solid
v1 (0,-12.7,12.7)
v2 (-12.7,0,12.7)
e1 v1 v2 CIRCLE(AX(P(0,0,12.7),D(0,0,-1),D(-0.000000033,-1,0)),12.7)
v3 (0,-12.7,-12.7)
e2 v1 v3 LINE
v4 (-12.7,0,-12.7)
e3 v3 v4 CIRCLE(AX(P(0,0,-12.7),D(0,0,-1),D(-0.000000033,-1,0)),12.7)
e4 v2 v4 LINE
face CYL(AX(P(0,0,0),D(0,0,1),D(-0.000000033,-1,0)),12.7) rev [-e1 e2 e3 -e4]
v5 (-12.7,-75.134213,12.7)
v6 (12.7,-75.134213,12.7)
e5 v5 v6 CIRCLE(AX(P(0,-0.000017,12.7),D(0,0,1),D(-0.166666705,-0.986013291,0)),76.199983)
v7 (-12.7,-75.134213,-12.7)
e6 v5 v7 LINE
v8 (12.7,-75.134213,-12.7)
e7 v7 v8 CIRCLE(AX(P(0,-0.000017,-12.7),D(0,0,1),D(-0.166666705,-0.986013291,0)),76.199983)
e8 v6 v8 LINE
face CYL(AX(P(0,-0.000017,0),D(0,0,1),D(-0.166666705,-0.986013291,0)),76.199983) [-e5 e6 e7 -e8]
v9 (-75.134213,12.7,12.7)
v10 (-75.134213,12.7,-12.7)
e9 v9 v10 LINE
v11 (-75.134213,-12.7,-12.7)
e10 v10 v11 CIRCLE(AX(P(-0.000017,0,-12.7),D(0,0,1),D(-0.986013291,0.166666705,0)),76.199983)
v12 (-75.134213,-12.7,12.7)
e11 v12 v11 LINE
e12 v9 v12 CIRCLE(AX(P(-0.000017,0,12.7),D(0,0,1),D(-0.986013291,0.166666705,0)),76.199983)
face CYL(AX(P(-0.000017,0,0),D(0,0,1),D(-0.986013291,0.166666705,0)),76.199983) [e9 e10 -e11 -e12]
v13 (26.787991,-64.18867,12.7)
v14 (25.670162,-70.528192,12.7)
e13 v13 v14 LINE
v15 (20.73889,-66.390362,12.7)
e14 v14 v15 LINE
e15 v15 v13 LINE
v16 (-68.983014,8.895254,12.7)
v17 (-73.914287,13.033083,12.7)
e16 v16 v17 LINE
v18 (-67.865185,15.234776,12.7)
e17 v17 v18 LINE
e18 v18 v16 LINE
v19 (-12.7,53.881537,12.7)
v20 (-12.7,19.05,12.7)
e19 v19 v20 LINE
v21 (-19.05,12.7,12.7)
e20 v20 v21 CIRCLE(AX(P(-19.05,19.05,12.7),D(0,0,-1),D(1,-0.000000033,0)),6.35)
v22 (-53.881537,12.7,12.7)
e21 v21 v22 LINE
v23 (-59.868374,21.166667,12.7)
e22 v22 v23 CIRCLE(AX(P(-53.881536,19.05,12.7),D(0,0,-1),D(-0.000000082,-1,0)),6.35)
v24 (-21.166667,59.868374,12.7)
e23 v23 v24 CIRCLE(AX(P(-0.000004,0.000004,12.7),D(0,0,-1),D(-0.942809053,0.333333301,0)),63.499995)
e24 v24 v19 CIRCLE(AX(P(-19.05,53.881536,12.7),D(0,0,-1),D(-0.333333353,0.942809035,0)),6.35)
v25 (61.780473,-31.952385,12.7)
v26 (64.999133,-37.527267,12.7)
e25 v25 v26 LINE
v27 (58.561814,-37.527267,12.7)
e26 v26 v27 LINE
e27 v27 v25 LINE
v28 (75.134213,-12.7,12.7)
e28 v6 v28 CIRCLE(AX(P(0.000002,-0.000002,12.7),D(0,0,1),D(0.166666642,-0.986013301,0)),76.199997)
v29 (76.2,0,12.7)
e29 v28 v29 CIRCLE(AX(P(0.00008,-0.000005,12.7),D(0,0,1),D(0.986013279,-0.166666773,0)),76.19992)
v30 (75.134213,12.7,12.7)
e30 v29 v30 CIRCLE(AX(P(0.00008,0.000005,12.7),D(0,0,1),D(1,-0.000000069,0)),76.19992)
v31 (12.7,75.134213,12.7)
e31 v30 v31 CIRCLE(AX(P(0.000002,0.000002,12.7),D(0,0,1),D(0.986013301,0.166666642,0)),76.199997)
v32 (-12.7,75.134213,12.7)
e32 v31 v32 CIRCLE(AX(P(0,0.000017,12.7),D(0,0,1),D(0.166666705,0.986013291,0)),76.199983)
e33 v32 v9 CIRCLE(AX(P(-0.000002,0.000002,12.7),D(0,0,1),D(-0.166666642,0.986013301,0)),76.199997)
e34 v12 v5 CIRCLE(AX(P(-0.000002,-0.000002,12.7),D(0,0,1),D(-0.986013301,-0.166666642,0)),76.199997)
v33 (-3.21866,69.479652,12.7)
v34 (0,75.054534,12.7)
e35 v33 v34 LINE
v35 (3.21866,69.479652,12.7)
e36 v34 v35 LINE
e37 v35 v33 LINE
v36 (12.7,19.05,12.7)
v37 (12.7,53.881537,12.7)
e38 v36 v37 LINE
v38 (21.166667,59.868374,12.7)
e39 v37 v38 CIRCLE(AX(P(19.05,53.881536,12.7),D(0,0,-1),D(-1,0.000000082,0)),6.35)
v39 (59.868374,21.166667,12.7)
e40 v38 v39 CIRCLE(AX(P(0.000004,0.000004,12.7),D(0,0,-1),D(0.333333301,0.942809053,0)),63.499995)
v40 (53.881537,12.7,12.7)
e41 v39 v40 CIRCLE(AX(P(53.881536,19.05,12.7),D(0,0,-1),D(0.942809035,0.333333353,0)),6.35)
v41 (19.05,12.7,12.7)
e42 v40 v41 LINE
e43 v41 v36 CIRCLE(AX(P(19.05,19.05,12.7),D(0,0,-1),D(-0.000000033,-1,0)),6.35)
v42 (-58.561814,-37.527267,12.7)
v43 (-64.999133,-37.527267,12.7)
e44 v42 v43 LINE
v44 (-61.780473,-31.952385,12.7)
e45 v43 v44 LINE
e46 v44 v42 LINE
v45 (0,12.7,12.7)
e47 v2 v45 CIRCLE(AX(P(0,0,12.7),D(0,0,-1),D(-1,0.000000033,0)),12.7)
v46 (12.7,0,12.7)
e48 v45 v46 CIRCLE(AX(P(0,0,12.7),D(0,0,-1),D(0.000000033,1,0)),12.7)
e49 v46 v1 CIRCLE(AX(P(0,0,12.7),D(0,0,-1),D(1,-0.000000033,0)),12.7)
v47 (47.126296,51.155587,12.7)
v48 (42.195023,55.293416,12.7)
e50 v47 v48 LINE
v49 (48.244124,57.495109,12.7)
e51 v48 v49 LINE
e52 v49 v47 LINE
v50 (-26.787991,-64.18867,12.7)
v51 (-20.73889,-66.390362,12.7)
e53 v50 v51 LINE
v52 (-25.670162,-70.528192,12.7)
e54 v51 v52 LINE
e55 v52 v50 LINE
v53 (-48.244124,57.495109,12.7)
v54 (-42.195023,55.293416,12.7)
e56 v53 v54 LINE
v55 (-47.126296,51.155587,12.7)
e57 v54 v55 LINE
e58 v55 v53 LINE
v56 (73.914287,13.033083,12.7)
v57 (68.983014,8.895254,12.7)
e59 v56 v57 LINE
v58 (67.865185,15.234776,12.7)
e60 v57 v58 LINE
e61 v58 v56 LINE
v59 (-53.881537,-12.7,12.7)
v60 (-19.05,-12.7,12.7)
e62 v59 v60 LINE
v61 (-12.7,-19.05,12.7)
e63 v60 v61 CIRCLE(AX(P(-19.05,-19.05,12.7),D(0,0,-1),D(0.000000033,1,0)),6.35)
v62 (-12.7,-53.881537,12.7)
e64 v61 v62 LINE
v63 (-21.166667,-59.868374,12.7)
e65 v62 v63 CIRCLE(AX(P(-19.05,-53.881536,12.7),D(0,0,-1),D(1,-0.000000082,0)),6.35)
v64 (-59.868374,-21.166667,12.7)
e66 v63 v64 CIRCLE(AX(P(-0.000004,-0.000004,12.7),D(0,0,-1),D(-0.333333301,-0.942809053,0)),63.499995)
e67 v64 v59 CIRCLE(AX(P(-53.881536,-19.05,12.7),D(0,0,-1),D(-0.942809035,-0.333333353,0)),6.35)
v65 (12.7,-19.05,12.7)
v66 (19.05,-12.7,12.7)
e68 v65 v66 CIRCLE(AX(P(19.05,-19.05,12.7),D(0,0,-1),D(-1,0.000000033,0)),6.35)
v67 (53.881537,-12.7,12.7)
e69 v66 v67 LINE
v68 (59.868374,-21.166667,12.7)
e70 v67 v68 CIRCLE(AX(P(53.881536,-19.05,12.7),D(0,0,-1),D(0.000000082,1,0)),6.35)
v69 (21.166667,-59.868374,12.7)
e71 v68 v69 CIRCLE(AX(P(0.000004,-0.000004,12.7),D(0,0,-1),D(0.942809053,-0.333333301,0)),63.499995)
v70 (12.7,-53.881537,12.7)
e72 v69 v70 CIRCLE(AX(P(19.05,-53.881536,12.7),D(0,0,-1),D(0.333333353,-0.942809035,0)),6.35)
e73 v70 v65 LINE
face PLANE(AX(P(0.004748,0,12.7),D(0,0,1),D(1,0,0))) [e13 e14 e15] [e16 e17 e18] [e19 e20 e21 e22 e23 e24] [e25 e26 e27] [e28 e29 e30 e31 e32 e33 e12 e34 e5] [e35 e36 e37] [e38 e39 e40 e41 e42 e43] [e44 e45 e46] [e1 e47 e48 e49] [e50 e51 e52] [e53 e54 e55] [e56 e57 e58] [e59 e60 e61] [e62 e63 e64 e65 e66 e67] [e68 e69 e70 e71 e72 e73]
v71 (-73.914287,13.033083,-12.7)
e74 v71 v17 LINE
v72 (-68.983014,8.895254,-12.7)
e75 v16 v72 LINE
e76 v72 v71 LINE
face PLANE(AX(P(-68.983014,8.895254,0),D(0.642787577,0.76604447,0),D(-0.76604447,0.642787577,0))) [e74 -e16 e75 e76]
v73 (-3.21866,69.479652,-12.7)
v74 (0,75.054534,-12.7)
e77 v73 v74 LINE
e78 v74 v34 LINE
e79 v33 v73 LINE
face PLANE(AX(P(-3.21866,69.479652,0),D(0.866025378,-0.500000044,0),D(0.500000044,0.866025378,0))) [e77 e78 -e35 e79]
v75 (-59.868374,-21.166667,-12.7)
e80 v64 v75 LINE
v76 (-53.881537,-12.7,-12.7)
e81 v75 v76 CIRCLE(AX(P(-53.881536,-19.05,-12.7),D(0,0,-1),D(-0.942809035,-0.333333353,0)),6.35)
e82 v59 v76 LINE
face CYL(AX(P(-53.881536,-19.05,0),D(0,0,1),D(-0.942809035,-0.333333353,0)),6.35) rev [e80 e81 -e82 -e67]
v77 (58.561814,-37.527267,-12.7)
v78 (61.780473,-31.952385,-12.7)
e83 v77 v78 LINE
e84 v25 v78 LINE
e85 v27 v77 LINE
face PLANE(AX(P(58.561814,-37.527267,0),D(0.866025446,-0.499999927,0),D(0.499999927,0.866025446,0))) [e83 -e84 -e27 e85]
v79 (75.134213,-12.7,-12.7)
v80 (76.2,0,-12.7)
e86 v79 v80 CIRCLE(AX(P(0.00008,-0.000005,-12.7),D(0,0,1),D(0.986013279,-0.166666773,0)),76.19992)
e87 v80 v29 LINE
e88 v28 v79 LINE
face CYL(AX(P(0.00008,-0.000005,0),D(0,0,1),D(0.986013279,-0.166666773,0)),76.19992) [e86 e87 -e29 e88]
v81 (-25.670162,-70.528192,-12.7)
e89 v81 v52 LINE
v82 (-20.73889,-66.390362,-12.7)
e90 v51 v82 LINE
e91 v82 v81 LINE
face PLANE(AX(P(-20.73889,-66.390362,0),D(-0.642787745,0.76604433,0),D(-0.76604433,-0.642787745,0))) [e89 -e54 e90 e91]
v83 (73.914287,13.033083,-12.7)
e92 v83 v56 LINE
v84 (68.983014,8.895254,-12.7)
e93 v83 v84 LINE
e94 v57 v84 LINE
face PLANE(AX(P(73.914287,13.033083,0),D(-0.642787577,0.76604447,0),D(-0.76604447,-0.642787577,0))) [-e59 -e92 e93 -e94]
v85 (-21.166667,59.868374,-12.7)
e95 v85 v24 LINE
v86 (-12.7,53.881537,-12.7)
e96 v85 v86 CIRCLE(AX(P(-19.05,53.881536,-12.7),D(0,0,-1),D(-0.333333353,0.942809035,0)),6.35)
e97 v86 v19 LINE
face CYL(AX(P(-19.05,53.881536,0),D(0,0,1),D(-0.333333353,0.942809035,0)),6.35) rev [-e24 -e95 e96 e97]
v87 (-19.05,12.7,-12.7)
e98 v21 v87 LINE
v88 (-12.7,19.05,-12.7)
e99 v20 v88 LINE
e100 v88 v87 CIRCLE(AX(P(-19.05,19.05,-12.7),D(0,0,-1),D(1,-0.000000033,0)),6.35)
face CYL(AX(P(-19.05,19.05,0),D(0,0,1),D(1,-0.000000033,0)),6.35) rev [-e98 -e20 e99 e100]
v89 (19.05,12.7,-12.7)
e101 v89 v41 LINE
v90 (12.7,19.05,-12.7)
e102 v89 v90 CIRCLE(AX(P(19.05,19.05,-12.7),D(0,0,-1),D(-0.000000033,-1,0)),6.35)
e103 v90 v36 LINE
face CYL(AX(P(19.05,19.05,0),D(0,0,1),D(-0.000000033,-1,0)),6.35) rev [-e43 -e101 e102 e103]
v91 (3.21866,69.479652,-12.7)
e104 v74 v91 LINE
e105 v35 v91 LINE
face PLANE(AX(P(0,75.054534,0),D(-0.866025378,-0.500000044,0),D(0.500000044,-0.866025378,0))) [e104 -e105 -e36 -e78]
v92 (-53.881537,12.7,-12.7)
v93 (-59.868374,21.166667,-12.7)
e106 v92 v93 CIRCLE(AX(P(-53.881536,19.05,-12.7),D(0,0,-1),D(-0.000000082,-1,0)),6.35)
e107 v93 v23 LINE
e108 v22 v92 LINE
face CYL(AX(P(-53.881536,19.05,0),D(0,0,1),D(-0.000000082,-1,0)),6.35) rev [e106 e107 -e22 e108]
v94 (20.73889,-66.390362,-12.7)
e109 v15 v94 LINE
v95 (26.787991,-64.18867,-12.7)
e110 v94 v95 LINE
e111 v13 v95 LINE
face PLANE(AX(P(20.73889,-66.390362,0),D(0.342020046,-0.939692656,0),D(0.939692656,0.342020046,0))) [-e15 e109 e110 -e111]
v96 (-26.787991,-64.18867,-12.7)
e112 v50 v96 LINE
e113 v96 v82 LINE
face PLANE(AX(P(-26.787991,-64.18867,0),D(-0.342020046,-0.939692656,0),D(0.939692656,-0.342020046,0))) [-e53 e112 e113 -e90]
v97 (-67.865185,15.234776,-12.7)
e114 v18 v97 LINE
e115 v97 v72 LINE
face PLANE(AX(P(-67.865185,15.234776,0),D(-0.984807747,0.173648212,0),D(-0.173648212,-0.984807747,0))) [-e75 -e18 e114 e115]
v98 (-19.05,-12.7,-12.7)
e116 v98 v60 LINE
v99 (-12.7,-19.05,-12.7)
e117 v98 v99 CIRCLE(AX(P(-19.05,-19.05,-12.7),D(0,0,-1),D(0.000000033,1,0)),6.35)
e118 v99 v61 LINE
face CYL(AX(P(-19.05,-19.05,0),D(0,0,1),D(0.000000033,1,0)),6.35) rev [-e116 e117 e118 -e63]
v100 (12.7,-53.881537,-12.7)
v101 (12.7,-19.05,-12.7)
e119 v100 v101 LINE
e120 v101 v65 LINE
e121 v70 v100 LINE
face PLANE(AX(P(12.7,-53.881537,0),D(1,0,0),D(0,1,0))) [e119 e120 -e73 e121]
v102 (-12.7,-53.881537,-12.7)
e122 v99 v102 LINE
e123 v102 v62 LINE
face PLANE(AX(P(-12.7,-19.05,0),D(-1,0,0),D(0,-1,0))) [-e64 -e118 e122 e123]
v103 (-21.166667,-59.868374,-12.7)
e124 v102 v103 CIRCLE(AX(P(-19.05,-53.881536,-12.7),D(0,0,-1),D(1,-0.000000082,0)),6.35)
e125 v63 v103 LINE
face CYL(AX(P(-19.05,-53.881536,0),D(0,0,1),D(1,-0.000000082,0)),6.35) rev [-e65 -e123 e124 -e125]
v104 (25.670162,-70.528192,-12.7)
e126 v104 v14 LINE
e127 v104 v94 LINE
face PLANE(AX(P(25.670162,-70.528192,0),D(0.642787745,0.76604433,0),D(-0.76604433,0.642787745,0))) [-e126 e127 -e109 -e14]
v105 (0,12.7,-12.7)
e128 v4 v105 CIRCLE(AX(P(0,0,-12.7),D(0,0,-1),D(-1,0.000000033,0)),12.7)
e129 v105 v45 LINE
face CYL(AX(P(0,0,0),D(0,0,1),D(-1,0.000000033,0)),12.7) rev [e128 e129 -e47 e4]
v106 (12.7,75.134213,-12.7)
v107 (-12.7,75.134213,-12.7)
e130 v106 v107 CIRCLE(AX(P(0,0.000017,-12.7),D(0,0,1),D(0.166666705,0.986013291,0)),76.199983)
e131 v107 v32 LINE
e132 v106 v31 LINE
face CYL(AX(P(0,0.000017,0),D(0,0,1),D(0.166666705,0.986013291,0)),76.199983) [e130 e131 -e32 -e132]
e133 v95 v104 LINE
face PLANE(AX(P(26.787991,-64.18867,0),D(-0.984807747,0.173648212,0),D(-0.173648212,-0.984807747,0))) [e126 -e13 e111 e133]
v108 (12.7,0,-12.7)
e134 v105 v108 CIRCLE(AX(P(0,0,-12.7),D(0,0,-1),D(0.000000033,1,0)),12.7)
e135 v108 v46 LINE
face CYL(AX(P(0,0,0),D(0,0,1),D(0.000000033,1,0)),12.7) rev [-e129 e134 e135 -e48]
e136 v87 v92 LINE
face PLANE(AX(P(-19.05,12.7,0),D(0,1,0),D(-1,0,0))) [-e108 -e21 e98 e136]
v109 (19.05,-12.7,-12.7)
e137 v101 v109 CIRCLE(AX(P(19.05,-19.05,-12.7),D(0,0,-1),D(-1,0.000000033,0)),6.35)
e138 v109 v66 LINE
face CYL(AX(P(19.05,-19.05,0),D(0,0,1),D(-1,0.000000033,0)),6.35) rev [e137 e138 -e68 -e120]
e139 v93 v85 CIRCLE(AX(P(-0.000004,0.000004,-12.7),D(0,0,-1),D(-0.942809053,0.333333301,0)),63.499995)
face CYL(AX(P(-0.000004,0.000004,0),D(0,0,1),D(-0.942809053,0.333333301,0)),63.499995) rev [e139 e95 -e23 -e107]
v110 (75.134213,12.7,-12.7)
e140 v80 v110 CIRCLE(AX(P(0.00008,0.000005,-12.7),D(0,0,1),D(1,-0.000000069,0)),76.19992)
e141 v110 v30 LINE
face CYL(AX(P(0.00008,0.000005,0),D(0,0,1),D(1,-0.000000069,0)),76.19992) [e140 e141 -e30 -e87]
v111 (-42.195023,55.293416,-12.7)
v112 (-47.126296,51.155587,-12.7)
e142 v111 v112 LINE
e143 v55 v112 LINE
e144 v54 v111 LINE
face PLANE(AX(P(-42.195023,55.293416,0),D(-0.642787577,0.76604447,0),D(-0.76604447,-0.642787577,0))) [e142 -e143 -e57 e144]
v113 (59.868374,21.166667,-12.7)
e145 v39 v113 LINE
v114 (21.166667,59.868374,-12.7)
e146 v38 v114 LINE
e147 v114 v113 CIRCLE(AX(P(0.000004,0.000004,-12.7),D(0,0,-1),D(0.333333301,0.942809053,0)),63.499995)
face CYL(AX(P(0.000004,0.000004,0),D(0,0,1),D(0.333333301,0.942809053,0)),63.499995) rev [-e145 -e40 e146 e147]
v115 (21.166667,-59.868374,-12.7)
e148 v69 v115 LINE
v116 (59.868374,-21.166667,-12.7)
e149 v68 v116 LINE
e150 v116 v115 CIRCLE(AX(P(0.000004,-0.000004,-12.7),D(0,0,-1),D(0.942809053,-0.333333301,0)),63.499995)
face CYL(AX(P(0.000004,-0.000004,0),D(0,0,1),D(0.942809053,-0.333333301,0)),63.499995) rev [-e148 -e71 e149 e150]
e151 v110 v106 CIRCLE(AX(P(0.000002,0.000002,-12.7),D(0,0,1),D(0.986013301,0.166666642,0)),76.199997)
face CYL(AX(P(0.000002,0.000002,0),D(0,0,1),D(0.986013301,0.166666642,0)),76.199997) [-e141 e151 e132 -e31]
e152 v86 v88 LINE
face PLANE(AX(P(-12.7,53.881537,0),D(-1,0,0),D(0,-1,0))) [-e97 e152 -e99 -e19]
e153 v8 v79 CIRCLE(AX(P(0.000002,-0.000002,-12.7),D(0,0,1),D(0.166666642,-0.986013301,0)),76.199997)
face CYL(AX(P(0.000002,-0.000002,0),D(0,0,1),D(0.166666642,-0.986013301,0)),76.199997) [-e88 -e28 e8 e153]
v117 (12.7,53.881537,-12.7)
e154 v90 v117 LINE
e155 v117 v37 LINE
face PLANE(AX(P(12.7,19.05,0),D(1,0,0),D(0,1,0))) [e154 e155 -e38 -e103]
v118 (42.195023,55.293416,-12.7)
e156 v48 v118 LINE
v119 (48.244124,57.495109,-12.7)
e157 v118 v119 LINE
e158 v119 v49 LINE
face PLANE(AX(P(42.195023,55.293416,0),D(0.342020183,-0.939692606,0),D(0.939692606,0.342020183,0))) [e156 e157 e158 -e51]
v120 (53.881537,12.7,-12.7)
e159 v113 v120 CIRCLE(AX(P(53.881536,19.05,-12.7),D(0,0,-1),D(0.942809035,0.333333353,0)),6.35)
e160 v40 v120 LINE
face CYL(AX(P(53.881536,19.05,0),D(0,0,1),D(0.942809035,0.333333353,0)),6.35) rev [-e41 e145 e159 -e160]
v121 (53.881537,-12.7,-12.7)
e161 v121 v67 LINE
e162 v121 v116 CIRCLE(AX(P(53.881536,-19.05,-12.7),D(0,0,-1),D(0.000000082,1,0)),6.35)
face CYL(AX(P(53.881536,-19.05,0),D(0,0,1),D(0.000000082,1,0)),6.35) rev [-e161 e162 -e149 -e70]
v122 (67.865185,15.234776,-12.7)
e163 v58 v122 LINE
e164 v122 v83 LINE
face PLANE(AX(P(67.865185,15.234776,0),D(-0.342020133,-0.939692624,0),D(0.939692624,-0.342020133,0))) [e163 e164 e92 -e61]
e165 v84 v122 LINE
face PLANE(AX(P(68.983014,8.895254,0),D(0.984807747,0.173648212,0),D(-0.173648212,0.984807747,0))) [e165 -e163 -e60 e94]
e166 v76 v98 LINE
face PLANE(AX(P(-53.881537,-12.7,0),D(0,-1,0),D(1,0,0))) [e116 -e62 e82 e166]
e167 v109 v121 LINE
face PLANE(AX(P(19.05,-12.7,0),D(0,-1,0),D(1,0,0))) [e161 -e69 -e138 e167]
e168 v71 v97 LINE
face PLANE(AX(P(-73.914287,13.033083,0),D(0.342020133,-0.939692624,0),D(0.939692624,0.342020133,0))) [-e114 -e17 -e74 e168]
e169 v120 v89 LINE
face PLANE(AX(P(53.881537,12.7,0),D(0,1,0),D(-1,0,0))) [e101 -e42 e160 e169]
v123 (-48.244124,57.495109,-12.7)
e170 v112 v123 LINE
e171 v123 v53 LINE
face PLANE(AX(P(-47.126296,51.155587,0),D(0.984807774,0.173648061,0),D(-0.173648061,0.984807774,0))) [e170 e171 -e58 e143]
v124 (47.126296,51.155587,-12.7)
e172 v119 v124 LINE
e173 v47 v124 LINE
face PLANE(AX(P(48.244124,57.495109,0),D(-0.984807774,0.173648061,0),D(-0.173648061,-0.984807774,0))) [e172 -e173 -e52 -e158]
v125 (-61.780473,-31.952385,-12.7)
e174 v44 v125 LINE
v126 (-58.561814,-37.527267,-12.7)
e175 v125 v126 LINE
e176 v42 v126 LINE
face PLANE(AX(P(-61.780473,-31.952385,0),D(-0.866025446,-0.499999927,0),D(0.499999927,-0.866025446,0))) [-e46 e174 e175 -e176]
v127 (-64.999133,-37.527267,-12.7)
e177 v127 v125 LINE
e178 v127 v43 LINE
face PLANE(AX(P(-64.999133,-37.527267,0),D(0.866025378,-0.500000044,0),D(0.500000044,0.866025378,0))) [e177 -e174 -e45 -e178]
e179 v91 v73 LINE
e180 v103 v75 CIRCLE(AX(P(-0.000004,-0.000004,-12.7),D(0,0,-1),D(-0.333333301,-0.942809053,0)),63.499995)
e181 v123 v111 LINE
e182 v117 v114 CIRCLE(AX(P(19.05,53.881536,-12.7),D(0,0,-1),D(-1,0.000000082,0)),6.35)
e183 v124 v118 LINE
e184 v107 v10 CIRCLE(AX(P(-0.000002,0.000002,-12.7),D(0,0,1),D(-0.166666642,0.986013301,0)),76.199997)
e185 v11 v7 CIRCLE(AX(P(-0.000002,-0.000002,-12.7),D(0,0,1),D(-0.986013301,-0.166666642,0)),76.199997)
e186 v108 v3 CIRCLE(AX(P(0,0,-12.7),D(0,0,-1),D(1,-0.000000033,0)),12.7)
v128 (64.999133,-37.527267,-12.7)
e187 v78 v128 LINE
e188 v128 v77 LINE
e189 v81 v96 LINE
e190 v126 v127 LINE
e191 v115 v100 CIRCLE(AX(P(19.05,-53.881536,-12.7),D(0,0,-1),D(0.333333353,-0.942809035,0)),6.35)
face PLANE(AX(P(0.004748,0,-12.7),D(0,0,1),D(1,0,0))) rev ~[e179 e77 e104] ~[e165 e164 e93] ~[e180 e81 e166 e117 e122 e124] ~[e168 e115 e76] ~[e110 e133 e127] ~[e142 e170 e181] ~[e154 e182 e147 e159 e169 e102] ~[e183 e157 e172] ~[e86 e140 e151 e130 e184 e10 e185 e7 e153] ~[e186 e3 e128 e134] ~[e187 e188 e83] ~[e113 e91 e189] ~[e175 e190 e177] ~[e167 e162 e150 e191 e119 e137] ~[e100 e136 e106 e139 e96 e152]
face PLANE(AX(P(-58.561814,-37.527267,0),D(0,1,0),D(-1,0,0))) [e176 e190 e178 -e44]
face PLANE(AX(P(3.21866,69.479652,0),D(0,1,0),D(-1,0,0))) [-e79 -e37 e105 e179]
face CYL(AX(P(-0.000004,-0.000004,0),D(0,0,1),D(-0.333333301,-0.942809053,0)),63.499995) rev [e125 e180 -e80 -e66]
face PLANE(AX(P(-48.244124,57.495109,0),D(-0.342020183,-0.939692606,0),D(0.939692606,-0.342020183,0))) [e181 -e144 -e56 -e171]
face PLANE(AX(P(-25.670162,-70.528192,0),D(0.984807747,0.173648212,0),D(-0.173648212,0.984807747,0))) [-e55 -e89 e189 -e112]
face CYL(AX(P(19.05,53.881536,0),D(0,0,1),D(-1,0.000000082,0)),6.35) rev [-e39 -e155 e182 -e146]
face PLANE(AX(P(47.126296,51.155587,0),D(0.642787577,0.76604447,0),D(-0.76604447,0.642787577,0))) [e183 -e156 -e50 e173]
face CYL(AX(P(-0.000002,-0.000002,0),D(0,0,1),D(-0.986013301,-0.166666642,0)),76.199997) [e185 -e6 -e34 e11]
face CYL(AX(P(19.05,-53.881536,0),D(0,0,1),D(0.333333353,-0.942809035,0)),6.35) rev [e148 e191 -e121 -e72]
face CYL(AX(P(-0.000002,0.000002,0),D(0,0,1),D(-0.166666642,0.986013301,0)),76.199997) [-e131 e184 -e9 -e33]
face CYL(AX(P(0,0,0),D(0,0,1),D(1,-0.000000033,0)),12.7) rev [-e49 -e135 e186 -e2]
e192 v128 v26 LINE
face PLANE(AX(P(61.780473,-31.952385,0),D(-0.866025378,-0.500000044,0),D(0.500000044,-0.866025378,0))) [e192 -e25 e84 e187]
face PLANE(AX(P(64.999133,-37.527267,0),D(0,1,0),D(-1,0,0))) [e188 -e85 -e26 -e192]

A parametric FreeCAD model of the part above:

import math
import FreeCAD as App
import Part
import Sketcher
from FreeCAD import Vector
Q = App.Units.Quantity


def add_polygon(sketch, points):
    """Adds a closed chain of lines whose ends are joined by coincident constraints."""
    first, n = sketch.GeometryCount, len(points)
    for a, b in zip(points, points[1:] + points[:1]):
        sketch.addGeometry(Part.LineSegment(App.Vector(*a, 0), App.Vector(*b, 0)), False)
    for i in range(n):
        sketch.addConstraint(Sketcher.Constraint("Coincident", first + i, 2, first + (i + 1) % n, 1))

doc = App.newDocument("Part")
params = doc.addObject("Spreadsheet::Sheet", "Params")
for row, (alias, value) in enumerate([
    ("sketch1_radius", "2.9999999 in"),
    ("sketch1_radius2", "0.5 in"),
    ("sketch1_radius3", "0.5 in"),
    ("sketch1_radius4", "0.25 in"),
    ("sketch1_radius5", "0.25 in"),
    ("pad1_length", "1 in"),
], start=1):
    params.set(f"A{row}", alias)
    params.set(f"B{row}", "=" + value)
    params.setAlias(f"B{row}", alias)

body = doc.addObject("PartDesign::Body", "Body")

sketch1 = body.newObject("Sketcher::SketchObject", "Sketch")
sketch1.AttachmentSupport = (doc.getObject("XY_Plane"), [""])
sketch1.MapMode = "FlatFace"
sketch1.addGeometry(Part.ArcOfCircle(Part.Circle(Vector(0.00008, -0.000005, 0), Vector(0, 0, 1), 76.19992), math.radians(-9.594074), math.radians(0.000004)), False)
sketch1.addGeometry(Part.ArcOfCircle(Part.Circle(Vector(0.00008, 0.000005, 0), Vector(0, 0, 1), 76.19992), math.radians(-0.000004), math.radians(9.594074)), False)
sketch1.addGeometry(Part.ArcOfCircle(Part.Circle(Vector(0.000002, 0.000002, 0), Vector(0, 0, 1), 76.199997), math.radians(9.594067), math.radians(80.405933)), False)
sketch1.addGeometry(Part.ArcOfCircle(Part.Circle(Vector(0, 0.000017, 0), Vector(0, 0, 1), 76.199983), math.radians(80.40593), math.radians(99.59407)), False)
sketch1.addGeometry(Part.ArcOfCircle(Part.Circle(Vector(-0.000002, 0.000002, 0), Vector(0, 0, 1), 76.199997), math.radians(99.594067), math.radians(170.405933)), False)
sketch1.addGeometry(Part.ArcOfCircle(Part.Circle(Vector(-0.000017, 0, 0), Vector(0, 0, 1), 76.199983), math.radians(170.40593), math.radians(189.59407)), False)
sketch1.addGeometry(Part.ArcOfCircle(Part.Circle(Vector(-0.000002, -0.000002, 0), Vector(0, 0, 1), 76.199997), math.radians(-170.405933), math.radians(-99.594067)), False)
sketch1.addGeometry(Part.ArcOfCircle(Part.Circle(Vector(0, -0.000017, 0), Vector(0, 0, 1), 76.199983), math.radians(-99.59407), math.radians(-80.40593)), False)
sketch1.addGeometry(Part.ArcOfCircle(Part.Circle(Vector(0.000002, -0.000002, 0), Vector(0, 0, 1), 76.199997), math.radians(-80.405933), math.radians(-9.594067)), False)
add_polygon(sketch1, [(-58.561814, -37.527267), (-64.999133, -37.527267), (-61.780473, -31.952385)])
add_polygon(sketch1, [(-20.73889, -66.390362), (-25.670162, -70.528192), (-26.787991, -64.18867)])
sketch1.addGeometry(Part.LineSegment(Vector(-53.881537, -12.7, 0), Vector(-19.05, -12.7, 0)), False)
sketch1.addGeometry(Part.ArcOfCircle(Part.Circle(Vector(-19.05, -19.05, 0), Vector(0, 0, 1), 6.35), math.radians(0.000002), math.radians(89.999998)), False)
sketch1.addGeometry(Part.LineSegment(Vector(-12.7, -19.05, 0), Vector(-12.7, -53.881537, 0)), False)
sketch1.addGeometry(Part.ArcOfCircle(Part.Circle(Vector(-19.05, -53.881536, 0), Vector(0, 0, 1), 6.35), math.radians(-109.471222), math.radians(-0.000005)), False)
sketch1.addGeometry(Part.ArcOfCircle(Part.Circle(Vector(-0.000004, -0.000004, 0), Vector(0, 0, 1), 63.499995), math.radians(-160.528781), math.radians(-109.471219)), False)
sketch1.addGeometry(Part.ArcOfCircle(Part.Circle(Vector(-53.881536, -19.05, 0), Vector(0, 0, 1), 6.35), math.radians(90.000005), math.radians(199.471222)), False)
add_polygon(sketch1, [(26.787991, -64.18867), (25.670162, -70.528192), (20.73889, -66.390362)])
sketch1.addGeometry(Part.LineSegment(Vector(12.7, -53.881537, 0), Vector(12.7, -19.05, 0)), False)
sketch1.addGeometry(Part.ArcOfCircle(Part.Circle(Vector(19.05, -19.05, 0), Vector(0, 0, 1), 6.35), math.radians(90.000002), math.radians(179.999998)), False)
sketch1.addGeometry(Part.LineSegment(Vector(19.05, -12.7, 0), Vector(53.881537, -12.7, 0)), False)
sketch1.addGeometry(Part.ArcOfCircle(Part.Circle(Vector(53.881536, -19.05, 0), Vector(0, 0, 1), 6.35), math.radians(-19.471222), math.radians(89.999995)), False)
sketch1.addGeometry(Part.ArcOfCircle(Part.Circle(Vector(0.000004, -0.000004, 0), Vector(0, 0, 1), 63.499995), math.radians(-70.528781), math.radians(-19.471219)), False)
sketch1.addGeometry(Part.ArcOfCircle(Part.Circle(Vector(19.05, -53.881536, 0), Vector(0, 0, 1), 6.35), math.radians(-179.999995), math.radians(-70.528778)), False)
add_polygon(sketch1, [(61.780473, -31.952385), (64.999133, -37.527267), (58.561814, -37.527267)])
sketch1.addGeometry(Part.ArcOfCircle(Part.Circle(Vector(0, 0, 0), Vector(0, 0, 1), 12.7), math.radians(90.000002), math.radians(179.999998)), False)
sketch1.addGeometry(Part.ArcOfCircle(Part.Circle(Vector(0, 0, 0), Vector(0, 0, 1), 12.7), math.radians(0.000002), math.radians(89.999998)), False)
sketch1.addGeometry(Part.ArcOfCircle(Part.Circle(Vector(0, 0, 0), Vector(0, 0, 1), 12.7), math.radians(-89.999998), math.radians(-0.000002)), False)
sketch1.addGeometry(Part.ArcOfCircle(Part.Circle(Vector(0, 0, 0), Vector(0, 0, 1), 12.7), math.radians(-179.999998), math.radians(-90.000002)), False)
add_polygon(sketch1, [(-68.983014, 8.895254), (-73.914287, 13.033083), (-67.865185, 15.234776)])
sketch1.addGeometry(Part.ArcOfCircle(Part.Circle(Vector(-53.881536, 19.05, 0), Vector(0, 0, 1), 6.35), math.radians(160.528778), math.radians(269.999995)), False)
sketch1.addGeometry(Part.ArcOfCircle(Part.Circle(Vector(-0.000004, 0.000004, 0), Vector(0, 0, 1), 63.499995), math.radians(109.471219), math.radians(160.528781)), False)
sketch1.addGeometry(Part.ArcOfCircle(Part.Circle(Vector(-19.05, 53.881536, 0), Vector(0, 0, 1), 6.35), math.radians(0.000005), math.radians(109.471222)), False)
sketch1.addGeometry(Part.LineSegment(Vector(-12.7, 53.881537, 0), Vector(-12.7, 19.05, 0)), False)
sketch1.addGeometry(Part.ArcOfCircle(Part.Circle(Vector(-19.05, 19.05, 0), Vector(0, 0, 1), 6.35), math.radians(-89.999998), math.radians(-0.000002)), False)
sketch1.addGeometry(Part.LineSegment(Vector(-19.05, 12.7, 0), Vector(-53.881537, 12.7, 0)), False)
add_polygon(sketch1, [(-47.126296, 51.155587), (-48.244124, 57.495109), (-42.195023, 55.293416)])
sketch1.addGeometry(Part.LineSegment(Vector(53.881537, 12.7, 0), Vector(19.05, 12.7, 0)), False)
sketch1.addGeometry(Part.ArcOfCircle(Part.Circle(Vector(19.05, 19.05, 0), Vector(0, 0, 1), 6.35), math.radians(-179.999998), math.radians(-90.000002)), False)
sketch1.addGeometry(Part.LineSegment(Vector(12.7, 19.05, 0), Vector(12.7, 53.881537, 0)), False)
sketch1.addGeometry(Part.ArcOfCircle(Part.Circle(Vector(19.05, 53.881536, 0), Vector(0, 0, 1), 6.35), math.radians(70.528778), math.radians(179.999995)), False)
sketch1.addGeometry(Part.ArcOfCircle(Part.Circle(Vector(0.000004, 0.000004, 0), Vector(0, 0, 1), 63.499995), math.radians(19.471219), math.radians(70.528781)), False)
sketch1.addGeometry(Part.ArcOfCircle(Part.Circle(Vector(53.881536, 19.05, 0), Vector(0, 0, 1), 6.35), math.radians(-89.999995), math.radians(19.471222)), False)
add_polygon(sketch1, [(67.865185, 15.234776), (73.914287, 13.033083), (68.983014, 8.895254)])
add_polygon(sketch1, [(-3.21866, 69.479652), (0, 75.054534), (3.21866, 69.479652)])
add_polygon(sketch1, [(42.195023, 55.293416), (48.244124, 57.495109), (47.126296, 51.155587)])
sketch1.addConstraint(Sketcher.Constraint("Coincident", 0, 2, 1, 1))
sketch1.addConstraint(Sketcher.Constraint("Coincident", 1, 2, 2, 1))
sketch1.addConstraint(Sketcher.Constraint("Coincident", 2, 2, 3, 1))
sketch1.addConstraint(Sketcher.Constraint("Coincident", 3, 2, 4, 1))
sketch1.addConstraint(Sketcher.Constraint("Coincident", 4, 2, 5, 1))
sketch1.addConstraint(Sketcher.Constraint("Coincident", 5, 2, 6, 1))
sketch1.addConstraint(Sketcher.Constraint("Coincident", 6, 2, 7, 1))
sketch1.addConstraint(Sketcher.Constraint("Coincident", 7, 2, 8, 1))
sketch1.addConstraint(Sketcher.Constraint("Coincident", 8, 2, 0, 1))
sketch1.addConstraint(Sketcher.Constraint("Coincident", 15, 2, 16, 2))
sketch1.addConstraint(Sketcher.Constraint("Coincident", 16, 1, 17, 1))
sketch1.addConstraint(Sketcher.Constraint("Coincident", 17, 2, 18, 2))
sketch1.addConstraint(Sketcher.Constraint("Coincident", 18, 1, 19, 2))
sketch1.addConstraint(Sketcher.Constraint("Coincident", 19, 1, 20, 2))
sketch1.addConstraint(Sketcher.Constraint("Coincident", 20, 1, 15, 1))
sketch1.addConstraint(Sketcher.Constraint("Coincident", 24, 2, 25, 2))
sketch1.addConstraint(Sketcher.Constraint("Coincident", 25, 1, 26, 1))
sketch1.addConstraint(Sketcher.Constraint("Coincident", 26, 2, 27, 2))
sketch1.addConstraint(Sketcher.Constraint("Coincident", 27, 1, 28, 2))
sketch1.addConstraint(Sketcher.Constraint("Coincident", 28, 1, 29, 2))
sketch1.addConstraint(Sketcher.Constraint("Coincident", 29, 1, 24, 1))
sketch1.addConstraint(Sketcher.Constraint("Coincident", 33, 1, 34, 2))
sketch1.addConstraint(Sketcher.Constraint("Coincident", 34, 1, 35, 2))
sketch1.addConstraint(Sketcher.Constraint("Coincident", 35, 1, 36, 2))
sketch1.addConstraint(Sketcher.Constraint("Coincident", 36, 1, 33, 2))
sketch1.addConstraint(Sketcher.Constraint("Coincident", 40, 1, 41, 2))
sketch1.addConstraint(Sketcher.Constraint("Coincident", 41, 1, 42, 2))
sketch1.addConstraint(Sketcher.Constraint("Coincident", 42, 1, 43, 1))
sketch1.addConstraint(Sketcher.Constraint("Coincident", 43, 2, 44, 2))
sketch1.addConstraint(Sketcher.Constraint("Coincident", 44, 1, 45, 1))
sketch1.addConstraint(Sketcher.Constraint("Coincident", 45, 2, 40, 2))
sketch1.addConstraint(Sketcher.Constraint("Coincident", 49, 2, 50, 2))
sketch1.addConstraint(Sketcher.Constraint("Coincident", 50, 1, 51, 1))
sketch1.addConstraint(Sketcher.Constraint("Coincident", 51, 2, 52, 2))
sketch1.addConstraint(Sketcher.Constraint("Coincident", 52, 1, 53, 2))
sketch1.addConstraint(Sketcher.Constraint("Coincident", 53, 1, 54, 2))
sketch1.addConstraint(Sketcher.Constraint("Coincident", 54, 1, 49, 1))
sketch1.addConstraint(Sketcher.Constraint("Horizontal", 9))
sketch1.addConstraint(Sketcher.Constraint("Horizontal", 15))
sketch1.addConstraint(Sketcher.Constraint("Vertical", 17))
sketch1.addConstraint(Sketcher.Constraint("Vertical", 24))
sketch1.addConstraint(Sketcher.Constraint("Horizontal", 26))
sketch1.addConstraint(Sketcher.Constraint("Horizontal", 31))
sketch1.addConstraint(Sketcher.Constraint("Vertical", 43))
sketch1.addConstraint(Sketcher.Constraint("Horizontal", 45))
sketch1.addConstraint(Sketcher.Constraint("Horizontal", 49))
sketch1.addConstraint(Sketcher.Constraint("Vertical", 51))
sketch1.addConstraint(Sketcher.Constraint("Horizontal", 60))
sketch1.addConstraint(Sketcher.Constraint("Coincident", 2, 3, -1, 1))
sketch1.addConstraint(Sketcher.Constraint("Coincident", 4, 3, -1, 1))
sketch1.addConstraint(Sketcher.Constraint("Coincident", 6, 3, -1, 1))
sketch1.addConstraint(Sketcher.Constraint("Coincident", 8, 3, -1, 1))
sketch1.addConstraint(Sketcher.Constraint("Coincident", 19, 3, -1, 1))
sketch1.addConstraint(Sketcher.Constraint("Coincident", 28, 3, -1, 1))
sketch1.addConstraint(Sketcher.Constraint("Coincident", 33, 3, -1, 1))
sketch1.addConstraint(Sketcher.Constraint("Coincident", 34, 3, -1, 1))
sketch1.addConstraint(Sketcher.Constraint("Coincident", 35, 3, -1, 1))
sketch1.addConstraint(Sketcher.Constraint("Coincident", 41, 3, -1, 1))
sketch1.addConstraint(Sketcher.Constraint("Coincident", 53, 3, -1, 1))
sketch1.addConstraint(Sketcher.Constraint("PointOnObject", 3, 3, -2))
sketch1.addConstraint(Sketcher.Constraint("PointOnObject", 5, 3, -1))
sketch1.addConstraint(Sketcher.Constraint("PointOnObject", 7, 3, -2))
sketch1.addConstraint(Sketcher.Constraint("PointOnObject", 0, 2, -1))
sketch1.addConstraint(Sketcher.Constraint("PointOnObject", 33, 1, -2))
sketch1.addConstraint(Sketcher.Constraint("PointOnObject", 34, 1, -1))
sketch1.addConstraint(Sketcher.Constraint("PointOnObject", 35, 1, -2))
sketch1.addConstraint(Sketcher.Constraint("PointOnObject", 36, 1, -1))
sketch1.addConstraint(Sketcher.Constraint("PointOnObject", 58, 2, -2))
sketch1.addConstraint(Sketcher.Constraint("Radius", 2, Q("2.9999999 in")))
sketch1.addConstraint(Sketcher.Constraint("Radius", 33, Q("0.5 in")))
sketch1.addConstraint(Sketcher.Constraint("Radius", 36, Q("0.5 in")))
sketch1.addConstraint(Sketcher.Constraint("Radius", 16, Q("0.25 in")))
sketch1.addConstraint(Sketcher.Constraint("Radius", 18, Q("0.25 in")))
sketch1.addConstraint(Sketcher.Constraint("Radius", 20, Q("0.25 in")))
sketch1.addConstraint(Sketcher.Constraint("Radius", 25, Q("0.25 in")))
sketch1.addConstraint(Sketcher.Constraint("Radius", 27, Q("0.25 in")))
sketch1.addConstraint(Sketcher.Constraint("Radius", 29, Q("0.25 in")))
sketch1.addConstraint(Sketcher.Constraint("Radius", 40, Q("0.25 in")))
sketch1.addConstraint(Sketcher.Constraint("Radius", 42, Q("0.25 in")))
sketch1.addConstraint(Sketcher.Constraint("Radius", 44, Q("0.25 in")))
sketch1.addConstraint(Sketcher.Constraint("Radius", 50, Q("0.25 in")))
sketch1.addConstraint(Sketcher.Constraint("Radius", 52, Q("0.25 in")))
sketch1.addConstraint(Sketcher.Constraint("Radius", 54, Q("0.25 in")))
sketch1.addConstraint(Sketcher.Constraint("DistanceX", -1, 1, 0, 2, Q("3 in")))
sketch1.addConstraint(Sketcher.Constraint("DistanceY", -1, 1, 1, 2, Q("0.5 in")))
sketch1.addConstraint(Sketcher.Constraint("DistanceX", -1, 1, 2, 2, Q("0.5 in")))
sketch1.addConstraint(Sketcher.Constraint("DistanceX", 3, 2, -1, 1, Q("0.5 in")))
sketch1.addConstraint(Sketcher.Constraint("DistanceY", -1, 1, 4, 2, Q("0.5 in")))
sketch1.addConstraint(Sketcher.Constraint("DistanceY", 5, 2, -1, 1, Q("0.5 in")))
sketch1.addConstraint(Sketcher.Constraint("DistanceX", 6, 2, -1, 1, Q("0.5 in")))
sketch1.addConstraint(Sketcher.Constraint("DistanceX", -1, 1, 7, 2, Q("0.5 in")))
sketch1.addConstraint(Sketcher.Constraint("DistanceY", 8, 2, -1, 1, Q("0.5 in")))
sketch1.addConstraint(Sketcher.Constraint("DistanceY", 15, 2, -1, 1, Q("0.5 in")))
sketch1.addConstraint(Sketcher.Constraint("DistanceX", 16, 1, -1, 1, Q("0.5 in")))
sketch1.addConstraint(Sketcher.Constraint("DistanceX", -1, 1, 24, 2, Q("0.5 in")))
sketch1.addConstraint(Sketcher.Constraint("DistanceY", 25, 1, -1, 1, Q("0.5 in")))
sketch1.addConstraint(Sketcher.Constraint("DistanceX", 42, 1, -1, 1, Q("0.5 in")))
sketch1.addConstraint(Sketcher.Constraint("DistanceY", -1, 1, 44, 1, Q("0.5 in")))
sketch1.addConstraint(Sketcher.Constraint("DistanceY", -1, 1, 49, 2, Q("0.5 in")))
sketch1.addConstraint(Sketcher.Constraint("DistanceX", -1, 1, 50, 1, Q("0.5 in")))
sketch1.addConstraint(Sketcher.Constraint("DistanceX", 15, 2, -1, 1, Q("0.75 in")))
sketch1.addConstraint(Sketcher.Constraint("DistanceY", 16, 1, -1, 1, Q("0.75 in")))
sketch1.addConstraint(Sketcher.Constraint("DistanceY", 24, 2, -1, 1, Q("0.75 in")))
sketch1.addConstraint(Sketcher.Constraint("DistanceX", -1, 1, 25, 1, Q("0.75 in")))
sketch1.addConstraint(Sketcher.Constraint("DistanceY", -1, 1, 43, 2, Q("0.75 in")))
sketch1.addConstraint(Sketcher.Constraint("DistanceX", 44, 1, -1, 1, Q("0.75 in")))
sketch1.addConstraint(Sketcher.Constraint("DistanceX", -1, 1, 49, 2, Q("0.75 in")))
sketch1.addConstraint(Sketcher.Constraint("DistanceY", -1, 1, 50, 1, Q("0.75 in")))
sketch1.addConstraint(Sketcher.Constraint("Radius", 0, Q("76.19992 mm")))
sketch1.addConstraint(Sketcher.Constraint("Radius", 1, Q("76.19992 mm")))
sketch1.addConstraint(Sketcher.Constraint("Radius", 3, Q("76.199983 mm")))
sketch1.addConstraint(Sketcher.Constraint("Radius", 5, Q("76.199983 mm")))
sketch1.addConstraint(Sketcher.Constraint("Radius", 7, Q("76.199983 mm")))
sketch1.addConstraint(Sketcher.Constraint("Radius", 19, Q("63.499995 mm")))
sketch1.addConstraint(Sketcher.Constraint("Radius", 28, Q("63.499995 mm")))
sketch1.addConstraint(Sketcher.Constraint("Radius", 41, Q("63.499995 mm")))
sketch1.addConstraint(Sketcher.Constraint("Radius", 53, Q("63.499995 mm")))
sketch1.addConstraint(Sketcher.Constraint("DistanceX", 9, 2, 9, 1, Q("6.437319 mm")))
sketch1.addConstraint(Sketcher.Constraint("DistanceX", 31, 2, 31, 1, Q("6.437319 mm")))
sketch1.addConstraint(Sketcher.Constraint("DistanceX", 60, 2, 60, 1, Q("6.43732 mm")))
sketch1.addConstraint(Sketcher.Constraint("Distance", 10, Q("6.437319 mm")))
sketch1.addConstraint(Sketcher.Constraint("Distance", 11, Q("6.437319 mm")))
sketch1.addConstraint(Sketcher.Constraint("Distance", 12, Q("6.437319 mm")))
sketch1.addConstraint(Sketcher.Constraint("Distance", 13, Q("6.437319 mm")))
sketch1.addConstraint(Sketcher.Constraint("Distance", 14, Q("6.437319 mm")))
sketch1.addConstraint(Sketcher.Constraint("Distance", 21, Q("6.437319 mm")))
sketch1.addConstraint(Sketcher.Constraint("Distance", 22, Q("6.437319 mm")))
sketch1.addConstraint(Sketcher.Constraint("Distance", 23, Q("6.437319 mm")))
sketch1.addConstraint(Sketcher.Constraint("Distance", 30, Q("6.437319 mm")))
sketch1.addConstraint(Sketcher.Constraint("Distance", 32, Q("6.437319 mm")))
sketch1.addConstraint(Sketcher.Constraint("Distance", 37, Q("6.437319 mm")))
sketch1.addConstraint(Sketcher.Constraint("Distance", 38, Q("6.43732 mm")))
sketch1.addConstraint(Sketcher.Constraint("Distance", 39, Q("6.437319 mm")))
sketch1.addConstraint(Sketcher.Constraint("Distance", 46, Q("6.437319 mm")))
sketch1.addConstraint(Sketcher.Constraint("Distance", 47, Q("6.437319 mm")))
sketch1.addConstraint(Sketcher.Constraint("Distance", 48, Q("6.437319 mm")))
sketch1.addConstraint(Sketcher.Constraint("Distance", 55, Q("6.43732 mm")))
sketch1.addConstraint(Sketcher.Constraint("Distance", 56, Q("6.437319 mm")))
sketch1.addConstraint(Sketcher.Constraint("Distance", 57, Q("6.437319 mm")))
sketch1.addConstraint(Sketcher.Constraint("Distance", 58, Q("6.437319 mm")))
sketch1.addConstraint(Sketcher.Constraint("Distance", 59, Q("6.437319 mm")))
sketch1.addConstraint(Sketcher.Constraint("Distance", 61, Q("6.437319 mm")))
sketch1.addConstraint(Sketcher.Constraint("Distance", 62, Q("6.437319 mm")))
sketch1.addConstraint(Sketcher.Constraint("Distance", 63, Q("6.437319 mm")))
sketch1.addConstraint(Sketcher.Constraint("DistanceX", 15, 1, 15, 2, Q("34.831537 mm")))
sketch1.addConstraint(Sketcher.Constraint("DistanceX", 26, 1, 26, 2, Q("34.831537 mm")))
sketch1.addConstraint(Sketcher.Constraint("DistanceX", 45, 2, 45, 1, Q("34.831537 mm")))
sketch1.addConstraint(Sketcher.Constraint("DistanceX", 49, 2, 49, 1, Q("34.831537 mm")))
sketch1.addConstraint(Sketcher.Constraint("DistanceY", 17, 2, 17, 1, Q("34.831537 mm")))
sketch1.addConstraint(Sketcher.Constraint("DistanceY", 24, 1, 24, 2, Q("34.831537 mm")))
sketch1.addConstraint(Sketcher.Constraint("DistanceY", 43, 2, 43, 1, Q("34.831537 mm")))
sketch1.addConstraint(Sketcher.Constraint("DistanceY", 51, 1, 51, 2, Q("34.831537 mm")))
sketch1.addConstraint(Sketcher.Constraint("DistanceX", 13, 2, -1, 1, Q("26.787991 mm")))
sketch1.addConstraint(Sketcher.Constraint("DistanceY", 13, 2, -1, 1, Q("64.18867 mm")))
sketch1.addConstraint(Sketcher.Constraint("DistanceX", 14, 2, -1, 1, Q("20.73889 mm")))
sketch1.addConstraint(Sketcher.Constraint("DistanceX", -1, 1, 22, 2, Q("20.73889 mm")))
sketch1.addConstraint(Sketcher.Constraint("DistanceY", 22, 2, -1, 1, Q("66.390362 mm")))
sketch1.addConstraint(Sketcher.Constraint("DistanceX", -1, 1, 23, 2, Q("26.787991 mm")))
sketch1.addConstraint(Sketcher.Constraint("DistanceY", -1, 1, 46, 2, Q("57.495109 mm")))
sketch1.addConstraint(Sketcher.Constraint("DistanceY", -1, 1, 59, 2, Q("69.479652 mm")))
sketch1.addConstraint(Sketcher.Constraint("DistanceY", -1, 1, 61, 2, Q("57.495109 mm")))
sketch1.addConstraint(Sketcher.Constraint("DistanceX", 9, 2, -1, 1, Q("64.999133 mm")))
sketch1.addConstraint(Sketcher.Constraint("DistanceY", 9, 2, -1, 1, Q("37.527267 mm")))
sketch1.addConstraint(Sketcher.Constraint("DistanceX", 18, 1, -1, 1, Q("21.166667 mm")))
sketch1.addConstraint(Sketcher.Constraint("DistanceX", 19, 1, -1, 1, Q("59.868374 mm")))
sketch1.addConstraint(Sketcher.Constraint("DistanceX", -1, 1, 27, 1, Q("59.868374 mm")))
sketch1.addConstraint(Sketcher.Constraint("DistanceX", -1, 1, 28, 1, Q("21.166667 mm")))
sketch1.addConstraint(Sketcher.Constraint("DistanceX", -1, 1, 30, 2, Q("64.999133 mm")))
sketch1.addConstraint(Sketcher.Constraint("DistanceY", 30, 2, -1, 1, Q("37.527267 mm")))
sketch1.addConstraint(Sketcher.Constraint("DistanceX", 37, 2, -1, 1, Q("73.914287 mm")))
sketch1.addConstraint(Sketcher.Constraint("DistanceY", -1, 1, 37, 2, Q("13.033083 mm")))
sketch1.addConstraint(Sketcher.Constraint("DistanceX", 38, 2, -1, 1, Q("67.865185 mm")))
sketch1.addConstraint(Sketcher.Constraint("DistanceX", 40, 1, -1, 1, Q("59.868374 mm")))
sketch1.addConstraint(Sketcher.Constraint("DistanceX", 41, 1, -1, 1, Q("21.166667 mm")))
sketch1.addConstraint(Sketcher.Constraint("DistanceX", 46, 2, -1, 1, Q("48.244124 mm")))
sketch1.addConstraint(Sketcher.Constraint("DistanceX", 47, 2, -1, 1, Q("42.195023 mm")))
sketch1.addConstraint(Sketcher.Constraint("DistanceX", -1, 1, 52, 1, Q("21.166667 mm")))
sketch1.addConstraint(Sketcher.Constraint("DistanceX", -1, 1, 53, 1, Q("59.868374 mm")))
sketch1.addConstraint(Sketcher.Constraint("DistanceX", -1, 1, 55, 2, Q("73.914287 mm")))
sketch1.addConstraint(Sketcher.Constraint("DistanceY", -1, 1, 55, 2, Q("13.033083 mm")))
sketch1.addConstraint(Sketcher.Constraint("DistanceX", -1, 1, 56, 2, Q("68.983014 mm")))
sketch1.addConstraint(Sketcher.Constraint("DistanceX", -1, 1, 61, 2, Q("48.244124 mm")))
sketch1.addConstraint(Sketcher.Constraint("DistanceX", -1, 1, 62, 2, Q("47.126296 mm")))
sketch1.setExpression("Constraints[95]", "Params.sketch1_radius")
sketch1.setExpression("Constraints[96]", "Params.sketch1_radius2")
sketch1.setExpression("Constraints[97]", "Params.sketch1_radius3")
sketch1.setExpression("Constraints[98]", "Params.sketch1_radius4")
sketch1.setExpression("Constraints[99]", "Params.sketch1_radius5")
pad1 = body.newObject("PartDesign::Pad", "Pad")
pad1.Profile = sketch1
pad1.setExpression("Length", "Params.pad1_length")
pad1.Midplane = True

doc.recompute()
